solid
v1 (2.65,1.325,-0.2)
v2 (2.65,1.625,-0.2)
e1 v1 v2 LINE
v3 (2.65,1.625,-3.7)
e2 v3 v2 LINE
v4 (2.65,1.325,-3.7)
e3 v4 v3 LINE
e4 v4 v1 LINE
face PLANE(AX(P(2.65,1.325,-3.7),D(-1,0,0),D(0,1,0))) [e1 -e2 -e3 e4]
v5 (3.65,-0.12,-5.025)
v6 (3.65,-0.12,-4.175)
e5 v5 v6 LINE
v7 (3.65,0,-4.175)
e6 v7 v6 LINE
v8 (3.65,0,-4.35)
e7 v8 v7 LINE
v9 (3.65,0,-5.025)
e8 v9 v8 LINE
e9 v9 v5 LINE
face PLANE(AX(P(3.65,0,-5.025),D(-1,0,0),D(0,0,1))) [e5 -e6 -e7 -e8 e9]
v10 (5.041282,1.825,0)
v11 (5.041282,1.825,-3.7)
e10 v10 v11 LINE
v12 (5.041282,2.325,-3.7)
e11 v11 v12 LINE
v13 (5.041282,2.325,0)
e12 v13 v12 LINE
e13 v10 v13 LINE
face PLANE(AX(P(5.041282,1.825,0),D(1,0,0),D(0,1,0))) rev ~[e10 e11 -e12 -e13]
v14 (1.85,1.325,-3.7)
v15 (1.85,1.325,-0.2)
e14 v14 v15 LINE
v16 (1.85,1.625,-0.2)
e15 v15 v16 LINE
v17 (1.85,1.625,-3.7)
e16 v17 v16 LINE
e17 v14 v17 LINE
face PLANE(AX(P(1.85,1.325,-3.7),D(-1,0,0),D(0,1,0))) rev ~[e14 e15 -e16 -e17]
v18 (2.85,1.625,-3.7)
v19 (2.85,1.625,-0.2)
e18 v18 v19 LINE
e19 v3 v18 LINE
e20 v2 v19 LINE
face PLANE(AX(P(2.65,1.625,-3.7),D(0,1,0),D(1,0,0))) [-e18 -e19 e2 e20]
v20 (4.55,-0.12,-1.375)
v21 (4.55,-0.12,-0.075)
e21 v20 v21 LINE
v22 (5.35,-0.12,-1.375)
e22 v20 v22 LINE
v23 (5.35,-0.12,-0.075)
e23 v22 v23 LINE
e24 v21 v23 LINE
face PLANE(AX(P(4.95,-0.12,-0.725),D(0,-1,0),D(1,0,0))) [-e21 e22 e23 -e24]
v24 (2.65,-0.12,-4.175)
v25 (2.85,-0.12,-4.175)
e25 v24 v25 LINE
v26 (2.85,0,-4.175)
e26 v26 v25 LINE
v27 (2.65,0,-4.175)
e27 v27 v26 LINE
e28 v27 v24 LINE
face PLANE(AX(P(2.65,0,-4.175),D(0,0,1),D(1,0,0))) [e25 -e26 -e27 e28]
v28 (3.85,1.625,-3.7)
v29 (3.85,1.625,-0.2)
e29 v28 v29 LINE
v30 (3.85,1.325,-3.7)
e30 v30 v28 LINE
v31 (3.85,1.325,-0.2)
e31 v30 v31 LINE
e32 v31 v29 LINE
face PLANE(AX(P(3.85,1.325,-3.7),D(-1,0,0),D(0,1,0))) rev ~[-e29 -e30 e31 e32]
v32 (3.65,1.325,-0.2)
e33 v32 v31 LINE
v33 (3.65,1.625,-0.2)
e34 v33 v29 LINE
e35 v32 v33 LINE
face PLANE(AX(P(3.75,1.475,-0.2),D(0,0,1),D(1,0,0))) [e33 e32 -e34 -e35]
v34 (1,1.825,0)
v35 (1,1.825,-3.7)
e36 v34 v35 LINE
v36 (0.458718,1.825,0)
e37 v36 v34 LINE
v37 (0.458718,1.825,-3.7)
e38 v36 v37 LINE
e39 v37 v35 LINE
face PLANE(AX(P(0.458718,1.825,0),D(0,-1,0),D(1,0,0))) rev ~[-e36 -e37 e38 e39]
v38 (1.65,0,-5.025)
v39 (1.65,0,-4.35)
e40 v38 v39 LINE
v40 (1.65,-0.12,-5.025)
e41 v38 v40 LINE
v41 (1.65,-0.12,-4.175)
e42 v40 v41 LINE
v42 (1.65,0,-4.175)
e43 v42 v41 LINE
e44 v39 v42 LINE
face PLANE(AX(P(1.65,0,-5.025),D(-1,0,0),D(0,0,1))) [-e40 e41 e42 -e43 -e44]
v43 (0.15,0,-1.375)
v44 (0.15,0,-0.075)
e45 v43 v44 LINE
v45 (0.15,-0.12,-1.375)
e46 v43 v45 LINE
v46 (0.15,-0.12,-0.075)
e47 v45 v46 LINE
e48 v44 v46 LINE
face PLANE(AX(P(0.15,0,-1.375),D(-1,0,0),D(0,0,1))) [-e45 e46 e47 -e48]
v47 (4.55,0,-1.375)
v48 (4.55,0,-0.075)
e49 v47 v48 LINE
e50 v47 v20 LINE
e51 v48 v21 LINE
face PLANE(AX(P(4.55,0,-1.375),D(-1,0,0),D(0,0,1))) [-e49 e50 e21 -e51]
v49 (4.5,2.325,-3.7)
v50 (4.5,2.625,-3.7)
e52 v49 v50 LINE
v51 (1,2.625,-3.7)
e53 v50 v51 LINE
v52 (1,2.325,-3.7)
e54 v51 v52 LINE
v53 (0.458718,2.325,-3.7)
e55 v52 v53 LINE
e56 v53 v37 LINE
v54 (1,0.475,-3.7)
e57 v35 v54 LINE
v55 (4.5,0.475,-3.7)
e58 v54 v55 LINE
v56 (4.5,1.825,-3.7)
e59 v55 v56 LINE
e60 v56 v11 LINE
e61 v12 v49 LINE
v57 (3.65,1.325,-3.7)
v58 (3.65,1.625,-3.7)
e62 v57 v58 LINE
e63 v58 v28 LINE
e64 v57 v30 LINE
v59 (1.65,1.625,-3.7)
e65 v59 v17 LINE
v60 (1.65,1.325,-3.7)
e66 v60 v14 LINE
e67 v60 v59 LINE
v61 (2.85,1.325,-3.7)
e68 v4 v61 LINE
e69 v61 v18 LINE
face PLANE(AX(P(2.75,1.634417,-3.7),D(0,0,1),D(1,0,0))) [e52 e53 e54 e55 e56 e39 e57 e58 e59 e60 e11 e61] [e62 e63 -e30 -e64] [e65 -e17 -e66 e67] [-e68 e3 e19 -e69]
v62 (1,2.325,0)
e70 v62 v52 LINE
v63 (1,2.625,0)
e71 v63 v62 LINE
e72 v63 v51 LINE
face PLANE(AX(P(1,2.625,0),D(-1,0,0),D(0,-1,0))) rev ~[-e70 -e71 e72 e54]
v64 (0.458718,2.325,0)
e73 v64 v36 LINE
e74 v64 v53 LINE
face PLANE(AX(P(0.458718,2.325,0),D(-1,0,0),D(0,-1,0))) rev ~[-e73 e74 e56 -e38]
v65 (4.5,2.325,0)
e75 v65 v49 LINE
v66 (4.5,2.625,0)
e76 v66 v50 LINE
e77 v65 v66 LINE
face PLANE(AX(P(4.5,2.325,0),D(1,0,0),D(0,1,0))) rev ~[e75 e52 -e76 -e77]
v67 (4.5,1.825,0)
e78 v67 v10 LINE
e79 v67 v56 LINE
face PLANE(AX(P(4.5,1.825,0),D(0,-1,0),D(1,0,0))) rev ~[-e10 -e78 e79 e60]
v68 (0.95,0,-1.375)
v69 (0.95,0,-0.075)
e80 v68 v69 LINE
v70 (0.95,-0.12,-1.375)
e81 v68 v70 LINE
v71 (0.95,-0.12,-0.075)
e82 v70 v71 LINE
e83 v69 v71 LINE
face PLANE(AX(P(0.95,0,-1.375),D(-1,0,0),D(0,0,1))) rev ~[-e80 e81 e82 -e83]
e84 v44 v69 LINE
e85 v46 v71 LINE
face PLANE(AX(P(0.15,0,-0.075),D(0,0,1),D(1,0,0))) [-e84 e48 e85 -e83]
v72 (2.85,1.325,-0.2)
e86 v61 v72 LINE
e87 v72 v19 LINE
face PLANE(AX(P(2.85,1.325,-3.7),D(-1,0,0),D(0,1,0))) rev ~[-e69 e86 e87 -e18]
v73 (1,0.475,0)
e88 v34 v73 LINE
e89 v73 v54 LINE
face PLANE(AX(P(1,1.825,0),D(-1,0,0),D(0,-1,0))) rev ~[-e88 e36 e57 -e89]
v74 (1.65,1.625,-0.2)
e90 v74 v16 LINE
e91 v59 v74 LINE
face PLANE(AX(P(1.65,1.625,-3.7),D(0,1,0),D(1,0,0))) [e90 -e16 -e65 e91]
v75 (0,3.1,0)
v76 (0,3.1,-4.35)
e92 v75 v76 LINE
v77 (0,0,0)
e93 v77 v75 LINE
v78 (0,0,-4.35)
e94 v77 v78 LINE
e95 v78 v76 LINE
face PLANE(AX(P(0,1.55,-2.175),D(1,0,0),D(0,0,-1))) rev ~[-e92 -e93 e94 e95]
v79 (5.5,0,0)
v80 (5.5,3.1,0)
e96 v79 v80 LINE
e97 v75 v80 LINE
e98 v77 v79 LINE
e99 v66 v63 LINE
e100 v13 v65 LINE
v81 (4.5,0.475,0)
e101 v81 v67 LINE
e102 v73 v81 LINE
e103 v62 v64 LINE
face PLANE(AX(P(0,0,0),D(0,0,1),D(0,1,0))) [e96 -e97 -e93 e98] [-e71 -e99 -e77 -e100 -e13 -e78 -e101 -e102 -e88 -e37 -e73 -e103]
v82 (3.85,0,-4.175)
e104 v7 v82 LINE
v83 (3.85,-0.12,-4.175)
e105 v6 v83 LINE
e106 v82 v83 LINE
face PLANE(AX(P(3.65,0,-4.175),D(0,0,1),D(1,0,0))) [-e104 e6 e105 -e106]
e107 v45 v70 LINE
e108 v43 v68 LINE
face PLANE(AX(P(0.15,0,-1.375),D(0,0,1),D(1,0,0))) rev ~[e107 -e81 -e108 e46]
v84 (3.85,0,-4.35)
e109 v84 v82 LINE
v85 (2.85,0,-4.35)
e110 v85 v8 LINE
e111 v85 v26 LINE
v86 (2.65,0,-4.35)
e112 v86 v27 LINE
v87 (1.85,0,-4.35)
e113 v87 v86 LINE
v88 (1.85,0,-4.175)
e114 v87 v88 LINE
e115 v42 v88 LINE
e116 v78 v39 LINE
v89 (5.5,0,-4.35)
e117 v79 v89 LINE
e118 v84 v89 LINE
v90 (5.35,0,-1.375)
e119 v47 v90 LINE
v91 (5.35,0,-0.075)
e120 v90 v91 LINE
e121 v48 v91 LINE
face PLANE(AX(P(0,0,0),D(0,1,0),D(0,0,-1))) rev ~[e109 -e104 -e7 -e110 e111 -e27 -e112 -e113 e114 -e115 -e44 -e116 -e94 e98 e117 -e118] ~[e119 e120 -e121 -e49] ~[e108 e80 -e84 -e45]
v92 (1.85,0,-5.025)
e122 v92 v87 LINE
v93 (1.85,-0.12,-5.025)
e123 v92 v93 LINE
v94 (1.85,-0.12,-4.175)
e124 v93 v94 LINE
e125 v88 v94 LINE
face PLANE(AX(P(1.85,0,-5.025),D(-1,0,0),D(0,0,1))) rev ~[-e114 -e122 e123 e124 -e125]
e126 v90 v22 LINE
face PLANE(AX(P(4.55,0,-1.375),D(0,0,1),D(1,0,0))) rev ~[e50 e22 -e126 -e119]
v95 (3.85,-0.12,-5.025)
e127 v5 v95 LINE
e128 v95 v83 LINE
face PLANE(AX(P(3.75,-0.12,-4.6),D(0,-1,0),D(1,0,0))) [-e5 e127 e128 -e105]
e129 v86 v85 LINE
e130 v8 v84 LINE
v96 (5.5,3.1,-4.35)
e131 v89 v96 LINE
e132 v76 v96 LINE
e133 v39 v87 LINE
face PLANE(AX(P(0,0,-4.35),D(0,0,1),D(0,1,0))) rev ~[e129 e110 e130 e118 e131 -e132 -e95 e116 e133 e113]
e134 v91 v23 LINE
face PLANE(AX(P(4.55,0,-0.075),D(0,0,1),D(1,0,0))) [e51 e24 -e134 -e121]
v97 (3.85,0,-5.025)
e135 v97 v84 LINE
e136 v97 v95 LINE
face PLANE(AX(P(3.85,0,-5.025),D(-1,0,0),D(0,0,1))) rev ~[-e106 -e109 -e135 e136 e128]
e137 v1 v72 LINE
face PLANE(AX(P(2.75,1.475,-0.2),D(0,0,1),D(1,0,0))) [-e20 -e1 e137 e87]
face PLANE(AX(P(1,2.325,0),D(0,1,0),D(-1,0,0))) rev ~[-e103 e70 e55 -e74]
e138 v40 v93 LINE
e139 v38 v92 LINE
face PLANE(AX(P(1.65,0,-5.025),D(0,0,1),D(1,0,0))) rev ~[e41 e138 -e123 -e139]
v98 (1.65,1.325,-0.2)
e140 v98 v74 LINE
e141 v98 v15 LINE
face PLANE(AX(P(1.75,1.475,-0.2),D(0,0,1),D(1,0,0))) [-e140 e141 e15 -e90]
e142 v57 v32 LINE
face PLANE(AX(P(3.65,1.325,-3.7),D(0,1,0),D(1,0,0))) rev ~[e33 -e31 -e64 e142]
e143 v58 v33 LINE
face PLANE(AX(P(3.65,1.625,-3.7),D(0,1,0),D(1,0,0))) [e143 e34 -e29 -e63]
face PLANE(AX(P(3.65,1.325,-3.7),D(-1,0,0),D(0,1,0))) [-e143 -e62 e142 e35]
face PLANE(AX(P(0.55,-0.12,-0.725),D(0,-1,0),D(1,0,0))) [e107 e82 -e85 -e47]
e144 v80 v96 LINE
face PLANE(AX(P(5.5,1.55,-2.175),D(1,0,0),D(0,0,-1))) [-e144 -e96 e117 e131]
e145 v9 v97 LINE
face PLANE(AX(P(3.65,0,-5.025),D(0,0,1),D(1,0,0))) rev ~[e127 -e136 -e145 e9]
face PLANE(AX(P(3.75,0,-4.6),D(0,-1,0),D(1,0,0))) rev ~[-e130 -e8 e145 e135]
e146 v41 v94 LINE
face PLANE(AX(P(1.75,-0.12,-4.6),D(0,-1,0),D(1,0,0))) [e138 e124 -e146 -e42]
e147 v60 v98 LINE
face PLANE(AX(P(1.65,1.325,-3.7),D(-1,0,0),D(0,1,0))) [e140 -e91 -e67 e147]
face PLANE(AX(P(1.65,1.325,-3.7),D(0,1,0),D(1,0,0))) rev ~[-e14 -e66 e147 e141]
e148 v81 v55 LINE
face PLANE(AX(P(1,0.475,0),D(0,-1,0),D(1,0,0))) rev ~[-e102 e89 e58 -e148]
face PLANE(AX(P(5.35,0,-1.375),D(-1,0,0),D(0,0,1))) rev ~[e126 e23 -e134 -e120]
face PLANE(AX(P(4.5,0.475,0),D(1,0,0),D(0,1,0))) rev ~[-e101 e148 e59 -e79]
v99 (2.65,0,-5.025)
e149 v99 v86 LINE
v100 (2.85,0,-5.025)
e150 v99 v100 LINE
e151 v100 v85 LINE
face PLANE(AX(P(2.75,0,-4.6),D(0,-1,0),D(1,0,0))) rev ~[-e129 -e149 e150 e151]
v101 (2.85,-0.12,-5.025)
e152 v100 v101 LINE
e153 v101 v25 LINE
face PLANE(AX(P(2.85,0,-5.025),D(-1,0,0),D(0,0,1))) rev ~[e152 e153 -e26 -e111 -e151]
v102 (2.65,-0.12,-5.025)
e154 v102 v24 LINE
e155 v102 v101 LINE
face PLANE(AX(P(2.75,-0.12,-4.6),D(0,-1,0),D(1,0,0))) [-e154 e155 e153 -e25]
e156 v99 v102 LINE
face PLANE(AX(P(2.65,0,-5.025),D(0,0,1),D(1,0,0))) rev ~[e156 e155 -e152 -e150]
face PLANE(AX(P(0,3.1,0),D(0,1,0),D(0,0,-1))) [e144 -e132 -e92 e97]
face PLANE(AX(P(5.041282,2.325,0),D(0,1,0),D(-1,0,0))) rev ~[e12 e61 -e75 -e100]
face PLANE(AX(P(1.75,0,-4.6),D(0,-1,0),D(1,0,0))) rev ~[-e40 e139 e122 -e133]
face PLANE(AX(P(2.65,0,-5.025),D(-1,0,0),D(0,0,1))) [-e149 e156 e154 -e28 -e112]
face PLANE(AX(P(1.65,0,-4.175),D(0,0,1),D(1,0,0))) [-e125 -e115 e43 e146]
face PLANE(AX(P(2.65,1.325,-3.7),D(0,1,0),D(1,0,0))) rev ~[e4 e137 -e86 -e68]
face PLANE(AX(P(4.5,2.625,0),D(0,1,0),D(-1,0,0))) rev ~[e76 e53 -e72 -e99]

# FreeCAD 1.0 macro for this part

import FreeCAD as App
import Part
import Sketcher
Q = App.Units.Quantity


def add_polygon(sketch, points):
    """Adds a closed chain of lines whose ends are joined by coincident constraints."""
    first, n = sketch.GeometryCount, len(points)
    for a, b in zip(points, points[1:] + points[:1]):
        sketch.addGeometry(Part.LineSegment(App.Vector(*a, 0), App.Vector(*b, 0)), False)
    for i in range(n):
        sketch.addConstraint(Sketcher.Constraint("Coincident", first + i, 2, first + (i + 1) % n, 1))

doc = App.newDocument("Part")
body = doc.addObject("PartDesign::Body", "Body")

# Sketch on YZ plane
sketch1 = body.newObject("Sketcher::SketchObject", "Sketch")
sketch1.AttachmentSupport = (doc.getObject("YZ_Plane"), [""])
sketch1.MapMode = "FlatFace"
add_polygon(sketch1, [(3.1, 0), (0, 0), (0, -4.3), (3.1, -4.3)])  # lines 0-3
sketch1.addConstraint(Sketcher.Constraint("Horizontal", 0))
sketch1.addConstraint(Sketcher.Constraint("Vertical", 1))
sketch1.addConstraint(Sketcher.Constraint("Horizontal", 2))
sketch1.addConstraint(Sketcher.Constraint("Vertical", 3))
sketch1.addConstraint(Sketcher.Constraint("Coincident", 0, 2, -1, 1))
sketch1.addConstraint(Sketcher.Constraint("DistanceX", 0, 2, 0, 1, Q("3.1 mm")))
sketch1.addConstraint(Sketcher.Constraint("DistanceY", 1, 2, 1, 1, Q("4.35 mm")))
pad1 = body.newObject("PartDesign::Pad", "Pad")
pad1.Profile = sketch1
pad1.Length = 5.5

# Sketch on XY plane
sketch2 = body.newObject("Sketcher::SketchObject", "Sketch001")
sketch2.AttachmentSupport = (doc.getObject("XY_Plane"), [""])
sketch2.MapMode = "FlatFace"
add_polygon(sketch2, [(1, 0.47), (4.5, 0.47), (4.5, 1.82), (5.04, 1.82), (5.04, 2.33), (4.5, 2.33), (4.5, 2.62), (1, 2.62), (1, 2.33), (0.46, 2.33), (0.46, 1.82), (1, 1.82)])  # lines 0-11
sketch2.addConstraint(Sketcher.Constraint("Horizontal", 0))
sketch2.addConstraint(Sketcher.Constraint("Vertical", 1))
sketch2.addConstraint(Sketcher.Constraint("Horizontal", 2))
sketch2.addConstraint(Sketcher.Constraint("Vertical", 3))
sketch2.addConstraint(Sketcher.Constraint("Horizontal", 4))
sketch2.addConstraint(Sketcher.Constraint("Vertical", 5))
sketch2.addConstraint(Sketcher.Constraint("Horizontal", 6))
sketch2.addConstraint(Sketcher.Constraint("Vertical", 7))
sketch2.addConstraint(Sketcher.Constraint("Horizontal", 8))
sketch2.addConstraint(Sketcher.Constraint("Vertical", 9))
sketch2.addConstraint(Sketcher.Constraint("Horizontal", 10))
sketch2.addConstraint(Sketcher.Constraint("Vertical", 11))
sketch2.addConstraint(Sketcher.Constraint("Horizontal", 4, 2, 7, 2))
sketch2.addConstraint(Sketcher.Constraint("Horizontal", 2, 2, 9, 2))
sketch2.addConstraint(Sketcher.Constraint("Vertical", 1, 2, 4, 2))
sketch2.addConstraint(Sketcher.Constraint("Vertical", 7, 2, 10, 2))
sketch2.addConstraint(Sketcher.Constraint("Equal", 4, 8))
sketch2.addConstraint(Sketcher.Constraint("DistanceX", 0, 1, 0, 2, Q("3.5 mm")))
sketch2.addConstraint(Sketcher.Constraint("DistanceY", 3, 1, 3, 2, Q("0.5 mm")))
sketch2.addConstraint(Sketcher.Constraint("DistanceY", 5, 1, 5, 2, Q("0.3 mm")))
sketch2.addConstraint(Sketcher.Constraint("DistanceX", -1, 1, 6, 2, Q("1 mm")))
sketch2.addConstraint(Sketcher.Constraint("DistanceY", 1, 1, 1, 2, Q("1.35 mm")))
sketch2.addConstraint(Sketcher.Constraint("DistanceY", -1, 1, 0, 2, Q("0.475 mm")))
sketch2.addConstraint(Sketcher.Constraint("DistanceX", 2, 1, 2, 2, Q("0.541282 mm")))
pocket1 = body.newObject("PartDesign::Pocket", "Pocket")
pocket1.Profile = sketch2
pocket1.Length = 3.7

# Sketch on XY plane
sketch3 = body.newObject("Sketcher::SketchObject", "Sketch002")
sketch3.AttachmentSupport = (doc.getObject("XY_Plane"), [""])
sketch3.MapMode = "FlatFace"
sketch3.AttachmentOffset = App.Placement(App.Vector(0, 0, -3.7), App.Rotation())
add_polygon(sketch3, [(2.65, 1.62), (2.65, 1.32), (2.85, 1.32), (2.85, 1.62)])  # lines 0-3
add_polygon(sketch3, [(1.65, 1.62), (1.65, 1.32), (1.85, 1.32), (1.85, 1.62)])  # lines 4-7
add_polygon(sketch3, [(3.65, 1.62), (3.65, 1.32), (3.85, 1.32), (3.85, 1.62)])  # lines 8-11
sketch3.addConstraint(Sketcher.Constraint("Vertical", 0))
sketch3.addConstraint(Sketcher.Constraint("Horizontal", 1))
sketch3.addConstraint(Sketcher.Constraint("Vertical", 2))
sketch3.addConstraint(Sketcher.Constraint("Horizontal", 3))
sketch3.addConstraint(Sketcher.Constraint("Vertical", 4))
sketch3.addConstraint(Sketcher.Constraint("Horizontal", 5))
sketch3.addConstraint(Sketcher.Constraint("Vertical", 6))
sketch3.addConstraint(Sketcher.Constraint("Horizontal", 7))
sketch3.addConstraint(Sketcher.Constraint("Vertical", 8))
sketch3.addConstraint(Sketcher.Constraint("Horizontal", 9))
sketch3.addConstraint(Sketcher.Constraint("Vertical", 10))
sketch3.addConstraint(Sketcher.Constraint("Horizontal", 11))
sketch3.addConstraint(Sketcher.Constraint("Horizontal", 1, 2, 4, 2))
sketch3.addConstraint(Sketcher.Constraint("Horizontal", 3, 2, 6, 2))
sketch3.addConstraint(Sketcher.Constraint("Horizontal", 5, 2, 8, 2))
sketch3.addConstraint(Sketcher.Constraint("Horizontal", 7, 2, 10, 2))
sketch3.addConstraint(Sketcher.Constraint("Equal", 3, 5))
sketch3.addConstraint(Sketcher.Constraint("Equal", 7, 9))
sketch3.addConstraint(Sketcher.Constraint("DistanceX", 1, 1, 1, 2, Q("0.2 mm")))
sketch3.addConstraint(Sketcher.Constraint("DistanceY", 0, 2, 0, 1, Q("0.3 mm")))
sketch3.addConstraint(Sketcher.Constraint("DistanceX", 4, 2, 0, 2, Q("1 mm")))
sketch3.addConstraint(Sketcher.Constraint("DistanceX", 0, 2, 8, 2, Q("1 mm")))
sketch3.addConstraint(Sketcher.Constraint("DistanceX", -1, 1, 0, 2, Q("2.65 mm")))
sketch3.addConstraint(Sketcher.Constraint("DistanceY", -1, 1, 0, 2, Q("1.325 mm")))
pad2 = body.newObject("PartDesign::Pad", "Pad001")
pad2.Profile = sketch3
pad2.Length = 3.5

# Sketch on XZ plane
sketch4 = body.newObject("Sketcher::SketchObject", "Sketch003")
sketch4.AttachmentSupport = (doc.getObject("XZ_Plane"), [""])
sketch4.MapMode = "FlatFace"
add_polygon(sketch4, [(2.65, -4.17), (2.65, -5.03), (2.85, -5.03), (2.85, -4.17)])  # lines 0-3
add_polygon(sketch4, [(0.15, -0.07), (0.15, -1.38), (0.95, -1.38), (0.95, -0.07)])  # lines 4-7
add_polygon(sketch4, [(1.65, -4.17), (1.65, -5.03), (1.85, -5.03), (1.85, -4.17)])  # lines 8-11
add_polygon(sketch4, [(3.65, -4.17), (3.65, -5.03), (3.85, -5.03), (3.85, -4.17)])  # lines 12-15
add_polygon(sketch4, [(4.55, -0.07), (4.55, -1.38), (5.35, -1.38), (5.35, -0.07)])  # lines 16-19
sketch4.addConstraint(Sketcher.Constraint("Vertical", 0))
sketch4.addConstraint(Sketcher.Constraint("Horizontal", 1))
sketch4.addConstraint(Sketcher.Constraint("Vertical", 2))
sketch4.addConstraint(Sketcher.Constraint("Horizontal", 3))
sketch4.addConstraint(Sketcher.Constraint("Vertical", 4))
sketch4.addConstraint(Sketcher.Constraint("Horizontal", 5))
sketch4.addConstraint(Sketcher.Constraint("Vertical", 6))
sketch4.addConstraint(Sketcher.Constraint("Horizontal", 7))
sketch4.addConstraint(Sketcher.Constraint("Vertical", 8))
sketch4.addConstraint(Sketcher.Constraint("Horizontal", 9))
sketch4.addConstraint(Sketcher.Constraint("Vertical", 10))
sketch4.addConstraint(Sketcher.Constraint("Horizontal", 11))
sketch4.addConstraint(Sketcher.Constraint("Vertical", 12))
sketch4.addConstraint(Sketcher.Constraint("Horizontal", 13))
sketch4.addConstraint(Sketcher.Constraint("Vertical", 14))
sketch4.addConstraint(Sketcher.Constraint("Horizontal", 15))
sketch4.addConstraint(Sketcher.Constraint("Vertical", 16))
sketch4.addConstraint(Sketcher.Constraint("Horizontal", 17))
sketch4.addConstraint(Sketcher.Constraint("Vertical", 18))
sketch4.addConstraint(Sketcher.Constraint("Horizontal", 19))
sketch4.addConstraint(Sketcher.Constraint("Horizontal", 1, 2, 8, 2))
sketch4.addConstraint(Sketcher.Constraint("Horizontal", 3, 2, 10, 2))
sketch4.addConstraint(Sketcher.Constraint("Horizontal", 9, 2, 12, 2))
sketch4.addConstraint(Sketcher.Constraint("Horizontal", 11, 2, 14, 2))
sketch4.addConstraint(Sketcher.Constraint("Horizontal", 5, 2, 16, 2))
sketch4.addConstraint(Sketcher.Constraint("Horizontal", 7, 2, 18, 2))
sketch4.addConstraint(Sketcher.Constraint("Equal", 3, 9))
sketch4.addConstraint(Sketcher.Constraint("Equal", 11, 13))
sketch4.addConstraint(Sketcher.Constraint("Equal", 7, 17))
sketch4.addConstraint(Sketcher.Constraint("DistanceX", 1, 1, 1, 2, Q("0.2 mm")))
sketch4.addConstraint(Sketcher.Constraint("DistanceX", 5, 1, 5, 2, Q("0.8 mm")))
sketch4.addConstraint(Sketcher.Constraint("DistanceY", 4, 2, 4, 1, Q("1.3 mm")))
sketch4.addConstraint(Sketcher.Constraint("DistanceX", 8, 2, 0, 2, Q("1 mm")))
sketch4.addConstraint(Sketcher.Constraint("DistanceX", 0, 2, 12, 2, Q("1 mm")))
sketch4.addConstraint(Sketcher.Constraint("DistanceY", 0, 2, 0, 1, Q("0.85 mm")))
sketch4.addConstraint(Sketcher.Constraint("DistanceX", 4, 2, 3, 2, Q("2.5 mm")))
sketch4.addConstraint(Sketcher.Constraint("DistanceY", 3, 2, 4, 2, Q("2.8 mm")))
sketch4.addConstraint(Sketcher.Constraint("DistanceX", 14, 2, 16, 2, Q("0.7 mm")))
sketch4.addConstraint(Sketcher.Constraint("DistanceX", -1, 1, 0, 2, Q("2.65 mm")))
sketch4.addConstraint(Sketcher.Constraint("DistanceY", 0, 2, -1, 1, Q("5.025 mm")))
pad3 = body.newObject("PartDesign::Pad", "Pad002")
pad3.Profile = sketch4
pad3.Length = 0.12

doc.recompute()
